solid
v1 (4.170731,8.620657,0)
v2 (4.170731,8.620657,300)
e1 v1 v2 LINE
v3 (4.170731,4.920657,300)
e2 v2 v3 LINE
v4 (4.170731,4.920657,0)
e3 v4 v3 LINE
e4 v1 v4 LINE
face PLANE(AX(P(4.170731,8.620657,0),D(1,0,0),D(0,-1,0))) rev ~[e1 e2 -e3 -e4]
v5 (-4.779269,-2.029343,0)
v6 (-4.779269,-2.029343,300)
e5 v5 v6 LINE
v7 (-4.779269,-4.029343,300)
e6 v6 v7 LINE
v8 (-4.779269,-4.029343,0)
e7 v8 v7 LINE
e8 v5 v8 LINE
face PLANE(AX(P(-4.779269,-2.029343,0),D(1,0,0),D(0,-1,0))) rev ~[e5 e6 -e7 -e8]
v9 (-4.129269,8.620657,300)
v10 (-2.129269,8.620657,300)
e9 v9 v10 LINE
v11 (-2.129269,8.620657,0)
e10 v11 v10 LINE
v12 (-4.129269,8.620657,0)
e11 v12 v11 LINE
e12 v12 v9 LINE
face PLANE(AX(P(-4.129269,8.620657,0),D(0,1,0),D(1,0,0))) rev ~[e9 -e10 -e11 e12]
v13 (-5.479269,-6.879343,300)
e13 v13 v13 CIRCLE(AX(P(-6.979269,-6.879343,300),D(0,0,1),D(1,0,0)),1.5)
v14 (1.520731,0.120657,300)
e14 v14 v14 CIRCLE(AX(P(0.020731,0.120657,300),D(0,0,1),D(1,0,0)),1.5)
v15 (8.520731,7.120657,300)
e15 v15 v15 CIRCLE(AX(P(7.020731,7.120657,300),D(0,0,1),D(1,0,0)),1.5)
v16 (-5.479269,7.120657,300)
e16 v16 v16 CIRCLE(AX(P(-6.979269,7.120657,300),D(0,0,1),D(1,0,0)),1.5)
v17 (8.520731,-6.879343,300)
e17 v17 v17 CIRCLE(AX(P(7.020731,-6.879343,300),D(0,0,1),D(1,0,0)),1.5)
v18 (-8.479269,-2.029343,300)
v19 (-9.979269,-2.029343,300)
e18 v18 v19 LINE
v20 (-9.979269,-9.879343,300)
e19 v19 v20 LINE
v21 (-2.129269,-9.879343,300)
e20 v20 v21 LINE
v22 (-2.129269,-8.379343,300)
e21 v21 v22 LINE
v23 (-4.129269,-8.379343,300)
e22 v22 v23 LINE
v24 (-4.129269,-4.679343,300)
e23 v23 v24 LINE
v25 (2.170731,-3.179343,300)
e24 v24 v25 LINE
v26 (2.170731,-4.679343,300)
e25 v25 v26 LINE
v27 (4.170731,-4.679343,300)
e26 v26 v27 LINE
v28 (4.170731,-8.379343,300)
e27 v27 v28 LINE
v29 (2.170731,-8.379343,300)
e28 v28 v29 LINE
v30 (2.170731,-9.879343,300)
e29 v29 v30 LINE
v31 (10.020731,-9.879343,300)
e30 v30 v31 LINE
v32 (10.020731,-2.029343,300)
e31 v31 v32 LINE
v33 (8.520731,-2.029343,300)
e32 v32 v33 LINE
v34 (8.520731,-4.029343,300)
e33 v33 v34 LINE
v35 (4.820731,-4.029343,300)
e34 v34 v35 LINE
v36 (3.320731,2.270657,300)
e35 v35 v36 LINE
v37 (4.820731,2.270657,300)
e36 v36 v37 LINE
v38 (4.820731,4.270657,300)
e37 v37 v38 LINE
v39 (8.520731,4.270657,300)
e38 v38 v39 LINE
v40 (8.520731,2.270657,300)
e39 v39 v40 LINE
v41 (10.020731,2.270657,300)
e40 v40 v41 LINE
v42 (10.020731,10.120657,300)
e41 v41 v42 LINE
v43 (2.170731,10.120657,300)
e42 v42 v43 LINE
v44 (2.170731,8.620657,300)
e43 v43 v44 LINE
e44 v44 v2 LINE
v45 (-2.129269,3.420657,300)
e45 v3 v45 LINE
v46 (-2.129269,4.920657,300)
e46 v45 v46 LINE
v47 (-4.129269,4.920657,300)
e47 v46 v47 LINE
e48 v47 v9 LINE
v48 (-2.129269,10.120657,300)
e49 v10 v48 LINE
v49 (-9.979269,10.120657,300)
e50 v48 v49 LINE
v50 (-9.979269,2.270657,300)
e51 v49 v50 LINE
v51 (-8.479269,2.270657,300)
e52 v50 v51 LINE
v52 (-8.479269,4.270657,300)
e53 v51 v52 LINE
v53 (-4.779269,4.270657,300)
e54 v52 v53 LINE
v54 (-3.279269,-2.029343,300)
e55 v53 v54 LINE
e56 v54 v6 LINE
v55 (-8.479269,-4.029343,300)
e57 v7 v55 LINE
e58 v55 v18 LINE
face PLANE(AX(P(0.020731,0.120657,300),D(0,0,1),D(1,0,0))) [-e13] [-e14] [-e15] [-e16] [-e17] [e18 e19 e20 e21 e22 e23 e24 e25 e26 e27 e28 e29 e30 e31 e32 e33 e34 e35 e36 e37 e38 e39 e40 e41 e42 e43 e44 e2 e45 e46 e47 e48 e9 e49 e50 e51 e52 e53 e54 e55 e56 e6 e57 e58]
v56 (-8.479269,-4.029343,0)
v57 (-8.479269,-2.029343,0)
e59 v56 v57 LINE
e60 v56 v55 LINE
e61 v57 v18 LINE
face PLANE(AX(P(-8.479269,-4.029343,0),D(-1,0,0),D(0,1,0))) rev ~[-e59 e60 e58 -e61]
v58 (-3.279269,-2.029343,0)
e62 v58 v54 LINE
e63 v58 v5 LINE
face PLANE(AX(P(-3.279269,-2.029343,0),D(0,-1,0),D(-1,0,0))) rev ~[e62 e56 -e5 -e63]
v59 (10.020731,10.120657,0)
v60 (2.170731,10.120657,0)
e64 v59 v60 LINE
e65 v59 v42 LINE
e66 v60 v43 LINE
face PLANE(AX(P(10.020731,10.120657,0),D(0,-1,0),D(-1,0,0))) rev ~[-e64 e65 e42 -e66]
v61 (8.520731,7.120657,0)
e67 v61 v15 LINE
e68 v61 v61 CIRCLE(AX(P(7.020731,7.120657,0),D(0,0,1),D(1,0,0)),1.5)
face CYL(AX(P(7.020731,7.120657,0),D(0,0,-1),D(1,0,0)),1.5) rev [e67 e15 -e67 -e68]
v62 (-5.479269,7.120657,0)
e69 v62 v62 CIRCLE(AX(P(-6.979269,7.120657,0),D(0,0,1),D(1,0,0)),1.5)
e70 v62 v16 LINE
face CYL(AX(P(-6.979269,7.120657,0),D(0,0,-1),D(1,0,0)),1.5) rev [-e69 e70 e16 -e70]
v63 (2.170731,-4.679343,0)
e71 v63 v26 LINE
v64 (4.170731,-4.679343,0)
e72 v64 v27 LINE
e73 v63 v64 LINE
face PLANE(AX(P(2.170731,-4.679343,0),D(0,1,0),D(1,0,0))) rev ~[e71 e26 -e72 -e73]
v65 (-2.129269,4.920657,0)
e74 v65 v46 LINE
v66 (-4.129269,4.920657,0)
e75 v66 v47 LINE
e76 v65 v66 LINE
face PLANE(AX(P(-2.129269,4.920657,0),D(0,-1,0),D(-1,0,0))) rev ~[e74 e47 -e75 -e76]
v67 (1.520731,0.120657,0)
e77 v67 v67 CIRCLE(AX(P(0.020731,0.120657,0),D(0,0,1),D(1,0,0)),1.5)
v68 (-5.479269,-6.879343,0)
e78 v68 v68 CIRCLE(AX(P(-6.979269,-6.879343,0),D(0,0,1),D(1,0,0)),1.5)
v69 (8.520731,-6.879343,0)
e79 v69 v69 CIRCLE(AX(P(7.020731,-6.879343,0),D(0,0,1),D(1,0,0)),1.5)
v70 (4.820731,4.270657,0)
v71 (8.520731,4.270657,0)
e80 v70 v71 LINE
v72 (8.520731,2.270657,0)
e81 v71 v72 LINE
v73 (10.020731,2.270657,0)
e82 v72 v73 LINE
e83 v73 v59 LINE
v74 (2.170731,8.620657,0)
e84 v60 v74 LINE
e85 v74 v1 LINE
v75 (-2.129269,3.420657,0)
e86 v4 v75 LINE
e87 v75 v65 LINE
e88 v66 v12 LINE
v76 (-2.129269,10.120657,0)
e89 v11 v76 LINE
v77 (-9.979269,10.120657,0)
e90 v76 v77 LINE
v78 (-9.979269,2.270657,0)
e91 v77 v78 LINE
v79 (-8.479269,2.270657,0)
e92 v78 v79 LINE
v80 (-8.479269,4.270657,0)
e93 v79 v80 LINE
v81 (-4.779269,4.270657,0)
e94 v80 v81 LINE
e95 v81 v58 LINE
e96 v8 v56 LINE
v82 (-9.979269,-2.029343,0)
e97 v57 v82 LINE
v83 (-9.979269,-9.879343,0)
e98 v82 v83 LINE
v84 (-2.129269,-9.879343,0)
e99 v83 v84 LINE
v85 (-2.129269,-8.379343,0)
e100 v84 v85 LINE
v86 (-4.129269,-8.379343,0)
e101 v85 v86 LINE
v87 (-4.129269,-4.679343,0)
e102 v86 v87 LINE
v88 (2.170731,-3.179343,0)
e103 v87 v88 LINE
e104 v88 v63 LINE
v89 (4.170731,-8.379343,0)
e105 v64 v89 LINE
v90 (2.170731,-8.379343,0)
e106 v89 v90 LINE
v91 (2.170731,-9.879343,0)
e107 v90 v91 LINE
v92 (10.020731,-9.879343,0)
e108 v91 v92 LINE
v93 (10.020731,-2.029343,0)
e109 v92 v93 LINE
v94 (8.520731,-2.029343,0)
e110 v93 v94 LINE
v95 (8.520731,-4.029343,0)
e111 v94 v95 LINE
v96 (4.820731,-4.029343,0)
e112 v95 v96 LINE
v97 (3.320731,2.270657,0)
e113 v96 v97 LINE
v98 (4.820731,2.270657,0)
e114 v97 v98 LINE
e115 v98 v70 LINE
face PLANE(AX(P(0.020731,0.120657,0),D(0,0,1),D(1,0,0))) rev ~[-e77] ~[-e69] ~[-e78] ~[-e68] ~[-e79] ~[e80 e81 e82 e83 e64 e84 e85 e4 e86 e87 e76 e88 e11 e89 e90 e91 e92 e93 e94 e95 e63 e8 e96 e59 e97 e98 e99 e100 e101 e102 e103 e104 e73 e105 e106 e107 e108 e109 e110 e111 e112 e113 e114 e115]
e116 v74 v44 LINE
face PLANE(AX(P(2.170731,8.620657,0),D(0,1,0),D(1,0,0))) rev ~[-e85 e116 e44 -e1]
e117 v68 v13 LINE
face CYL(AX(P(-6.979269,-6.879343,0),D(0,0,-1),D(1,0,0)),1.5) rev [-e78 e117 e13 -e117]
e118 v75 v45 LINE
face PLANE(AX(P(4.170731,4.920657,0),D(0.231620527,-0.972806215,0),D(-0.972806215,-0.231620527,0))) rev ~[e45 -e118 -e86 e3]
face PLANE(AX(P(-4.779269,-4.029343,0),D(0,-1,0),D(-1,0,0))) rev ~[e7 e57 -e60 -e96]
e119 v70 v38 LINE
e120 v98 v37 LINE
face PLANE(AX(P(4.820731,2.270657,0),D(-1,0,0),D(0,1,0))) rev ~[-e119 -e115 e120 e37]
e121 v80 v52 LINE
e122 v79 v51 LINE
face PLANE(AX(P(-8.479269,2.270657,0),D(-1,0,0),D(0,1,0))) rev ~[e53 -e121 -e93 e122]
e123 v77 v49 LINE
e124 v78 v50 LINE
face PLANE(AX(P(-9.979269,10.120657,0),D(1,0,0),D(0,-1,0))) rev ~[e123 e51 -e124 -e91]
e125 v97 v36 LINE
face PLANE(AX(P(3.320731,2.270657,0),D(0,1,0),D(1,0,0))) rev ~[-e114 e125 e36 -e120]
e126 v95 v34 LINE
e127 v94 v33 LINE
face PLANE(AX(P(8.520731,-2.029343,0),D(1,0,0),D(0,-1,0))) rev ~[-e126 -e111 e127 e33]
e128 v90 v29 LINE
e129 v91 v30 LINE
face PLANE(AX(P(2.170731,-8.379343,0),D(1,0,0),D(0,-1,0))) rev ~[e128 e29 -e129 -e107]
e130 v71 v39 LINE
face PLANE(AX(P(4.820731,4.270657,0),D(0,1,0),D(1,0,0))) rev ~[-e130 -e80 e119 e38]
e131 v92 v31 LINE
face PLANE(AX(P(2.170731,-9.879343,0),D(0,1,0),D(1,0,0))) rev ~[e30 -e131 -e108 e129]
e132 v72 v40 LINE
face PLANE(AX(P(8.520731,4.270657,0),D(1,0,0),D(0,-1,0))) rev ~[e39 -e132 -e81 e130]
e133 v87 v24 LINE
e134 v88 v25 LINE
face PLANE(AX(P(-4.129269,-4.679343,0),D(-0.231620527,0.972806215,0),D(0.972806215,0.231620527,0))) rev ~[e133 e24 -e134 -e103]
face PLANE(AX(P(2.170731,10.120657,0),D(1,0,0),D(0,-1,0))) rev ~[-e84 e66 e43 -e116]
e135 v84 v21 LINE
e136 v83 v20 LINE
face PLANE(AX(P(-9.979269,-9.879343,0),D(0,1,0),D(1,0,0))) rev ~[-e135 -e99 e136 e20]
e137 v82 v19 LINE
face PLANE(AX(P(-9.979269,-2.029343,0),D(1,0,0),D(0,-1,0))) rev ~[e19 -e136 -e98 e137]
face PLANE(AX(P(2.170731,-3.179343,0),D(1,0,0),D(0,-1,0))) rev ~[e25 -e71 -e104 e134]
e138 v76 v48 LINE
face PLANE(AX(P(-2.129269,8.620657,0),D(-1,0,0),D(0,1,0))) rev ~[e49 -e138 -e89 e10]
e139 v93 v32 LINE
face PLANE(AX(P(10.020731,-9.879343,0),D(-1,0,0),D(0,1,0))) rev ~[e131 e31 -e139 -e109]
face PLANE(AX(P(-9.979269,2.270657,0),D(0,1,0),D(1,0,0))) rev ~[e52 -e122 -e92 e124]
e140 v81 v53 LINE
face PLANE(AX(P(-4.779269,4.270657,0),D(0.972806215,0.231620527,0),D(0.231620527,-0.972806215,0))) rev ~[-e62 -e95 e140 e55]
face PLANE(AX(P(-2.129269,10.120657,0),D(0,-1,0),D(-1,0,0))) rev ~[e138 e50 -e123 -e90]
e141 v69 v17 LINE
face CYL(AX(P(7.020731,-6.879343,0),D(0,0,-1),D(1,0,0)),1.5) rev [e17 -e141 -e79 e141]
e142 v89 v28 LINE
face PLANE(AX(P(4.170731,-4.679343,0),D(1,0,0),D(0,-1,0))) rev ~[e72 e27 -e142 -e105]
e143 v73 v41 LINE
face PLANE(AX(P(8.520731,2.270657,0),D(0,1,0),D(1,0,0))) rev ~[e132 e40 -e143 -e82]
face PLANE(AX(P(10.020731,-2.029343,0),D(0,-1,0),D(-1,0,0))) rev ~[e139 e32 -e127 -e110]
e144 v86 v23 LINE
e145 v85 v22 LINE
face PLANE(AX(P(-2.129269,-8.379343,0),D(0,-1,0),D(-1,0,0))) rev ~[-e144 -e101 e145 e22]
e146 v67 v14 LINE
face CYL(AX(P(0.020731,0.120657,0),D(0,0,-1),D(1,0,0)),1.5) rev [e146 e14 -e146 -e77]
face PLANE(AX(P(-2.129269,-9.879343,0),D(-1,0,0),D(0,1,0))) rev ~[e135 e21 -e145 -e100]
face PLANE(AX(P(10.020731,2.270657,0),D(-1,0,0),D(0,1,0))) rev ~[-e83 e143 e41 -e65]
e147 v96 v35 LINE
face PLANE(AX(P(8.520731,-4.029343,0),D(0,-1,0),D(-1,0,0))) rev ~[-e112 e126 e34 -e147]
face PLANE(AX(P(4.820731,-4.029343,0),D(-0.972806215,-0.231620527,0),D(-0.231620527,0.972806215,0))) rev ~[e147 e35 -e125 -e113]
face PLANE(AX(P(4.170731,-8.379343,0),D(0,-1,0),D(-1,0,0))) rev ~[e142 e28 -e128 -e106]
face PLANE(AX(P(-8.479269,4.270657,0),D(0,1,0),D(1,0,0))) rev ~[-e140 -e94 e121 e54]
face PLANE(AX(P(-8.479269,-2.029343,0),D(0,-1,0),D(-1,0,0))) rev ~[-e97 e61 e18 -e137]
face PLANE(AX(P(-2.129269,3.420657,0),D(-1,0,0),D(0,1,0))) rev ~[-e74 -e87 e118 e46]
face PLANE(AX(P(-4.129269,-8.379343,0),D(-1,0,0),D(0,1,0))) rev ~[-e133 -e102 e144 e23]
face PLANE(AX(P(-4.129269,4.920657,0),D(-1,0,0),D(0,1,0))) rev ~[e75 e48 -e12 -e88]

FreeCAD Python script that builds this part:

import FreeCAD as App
import Part
import Sketcher
from FreeCAD import Vector


def add_polygon(sketch, points):
    """Adds a closed chain of lines whose ends are joined by coincident constraints."""
    first, n = sketch.GeometryCount, len(points)
    for a, b in zip(points, points[1:] + points[:1]):
        sketch.addGeometry(Part.LineSegment(App.Vector(*a, 0), App.Vector(*b, 0)), False)
    for i in range(n):
        sketch.addConstraint(Sketcher.Constraint("Coincident", first + i, 2, first + (i + 1) % n, 1))

doc = App.newDocument("Part")
body = doc.addObject("PartDesign::Body", "Body")

# Sketch on XY plane
sketch1 = doc.addObject("Sketcher::SketchObject", "Sketch")
body.addObject(sketch1)
sketch1.AttachmentSupport = (doc.XY_Plane, [""])
sketch1.MapMode = "FlatFace"
add_polygon(sketch1, [(-2.1, 10.1), (-10, 10.1), (-10, 2.3), (-8.5, 2.3), (-8.5, 4.3), (-4.8, 4.3), (-3.3, -2), (-4.8, -2), (-4.8, -4), (-8.5, -4), (-8.5, -2), (-10, -2), (-10, -9.9), (-2.1, -9.9), (-2.1, -8.4), (-4.1, -8.4), (-4.1, -4.7), (2.2, -3.2), (2.2, -4.7), (4.2, -4.7), (4.2, -8.4), (2.2, -8.4), (2.2, -9.9), (10, -9.9), (10, -2), (8.5, -2), (8.5, -4), (4.8, -4), (3.3, 2.3), (4.8, 2.3), (4.8, 4.3), (8.5, 4.3), (8.5, 2.3), (10, 2.3), (10, 10.1), (2.2, 10.1), (2.2, 8.6), (4.2, 8.6), (4.2, 4.9), (-2.1, 3.4), (-2.1, 4.9), (-4.1, 4.9), (-4.1, 8.6), (-2.1, 8.6)])  # lines 0-43
sketch1.addGeometry(Part.Circle(Vector(-7, -6.9, 0), Vector(0, 0, 1), 1.5), False)  # 44
sketch1.addGeometry(Part.Circle(Vector(7, -6.9, 0), Vector(0, 0, 1), 1.5), False)  # 45
sketch1.addGeometry(Part.Circle(Vector(-7, 7.1, 0), Vector(0, 0, 1), 1.5), False)  # 46
sketch1.addGeometry(Part.Circle(Vector(0, 0.1, 0), Vector(0, 0, 1), 1.5), False)  # 47
sketch1.addGeometry(Part.Circle(Vector(7, 7.1, 0), Vector(0, 0, 1), 1.5), False)  # 48
sketch1.addConstraint(Sketcher.Constraint("Horizontal", 0))
sketch1.addConstraint(Sketcher.Constraint("Vertical", 1))
sketch1.addConstraint(Sketcher.Constraint("Horizontal", 2))
sketch1.addConstraint(Sketcher.Constraint("Vertical", 3))
sketch1.addConstraint(Sketcher.Constraint("Horizontal", 4))
sketch1.addConstraint(Sketcher.Constraint("Horizontal", 6))
sketch1.addConstraint(Sketcher.Constraint("Vertical", 7))
sketch1.addConstraint(Sketcher.Constraint("Horizontal", 8))
sketch1.addConstraint(Sketcher.Constraint("Vertical", 9))
sketch1.addConstraint(Sketcher.Constraint("Horizontal", 10))
sketch1.addConstraint(Sketcher.Constraint("Vertical", 11))
sketch1.addConstraint(Sketcher.Constraint("Horizontal", 12))
sketch1.addConstraint(Sketcher.Constraint("Vertical", 13))
sketch1.addConstraint(Sketcher.Constraint("Horizontal", 14))
sketch1.addConstraint(Sketcher.Constraint("Vertical", 15))
sketch1.addConstraint(Sketcher.Constraint("Vertical", 17))
sketch1.addConstraint(Sketcher.Constraint("Horizontal", 18))
sketch1.addConstraint(Sketcher.Constraint("Vertical", 19))
sketch1.addConstraint(Sketcher.Constraint("Horizontal", 20))
sketch1.addConstraint(Sketcher.Constraint("Vertical", 21))
sketch1.addConstraint(Sketcher.Constraint("Horizontal", 22))
sketch1.addConstraint(Sketcher.Constraint("Vertical", 23))
sketch1.addConstraint(Sketcher.Constraint("Horizontal", 24))
sketch1.addConstraint(Sketcher.Constraint("Vertical", 25))
sketch1.addConstraint(Sketcher.Constraint("Horizontal", 26))
sketch1.addConstraint(Sketcher.Constraint("Horizontal", 28))
sketch1.addConstraint(Sketcher.Constraint("Vertical", 29))
sketch1.addConstraint(Sketcher.Constraint("Horizontal", 30))
sketch1.addConstraint(Sketcher.Constraint("Vertical", 31))
sketch1.addConstraint(Sketcher.Constraint("Horizontal", 32))
sketch1.addConstraint(Sketcher.Constraint("Vertical", 33))
sketch1.addConstraint(Sketcher.Constraint("Horizontal", 34))
sketch1.addConstraint(Sketcher.Constraint("Vertical", 35))
sketch1.addConstraint(Sketcher.Constraint("Horizontal", 36))
sketch1.addConstraint(Sketcher.Constraint("Vertical", 37))
sketch1.addConstraint(Sketcher.Constraint("Vertical", 39))
sketch1.addConstraint(Sketcher.Constraint("Horizontal", 40))
sketch1.addConstraint(Sketcher.Constraint("Vertical", 41))
sketch1.addConstraint(Sketcher.Constraint("Horizontal", 42))
sketch1.addConstraint(Sketcher.Constraint("Vertical", 43))
sketch1.addConstraint(Sketcher.Constraint("Equal", 44, 45))
sketch1.addConstraint(Sketcher.Constraint("Equal", 45, 46))
sketch1.addConstraint(Sketcher.Constraint("Equal", 46, 47))
sketch1.addConstraint(Sketcher.Constraint("Equal", 47, 48))
sketch1.addConstraint(Sketcher.Constraint("Perpendicular", 5, 16))
sketch1.addConstraint(Sketcher.Constraint("Perpendicular", 16, 27))
sketch1.addConstraint(Sketcher.Constraint("Perpendicular", 27, 38))
sketch1.addConstraint(Sketcher.Constraint("Horizontal", 44, 3, 45, 3))
sketch1.addConstraint(Sketcher.Constraint("Horizontal", 46, 3, 48, 3))
sketch1.addConstraint(Sketcher.Constraint("Horizontal", 6, 2, 9, 2))
sketch1.addConstraint(Sketcher.Constraint("Horizontal", 15, 2, 17, 2))
sketch1.addConstraint(Sketcher.Constraint("Horizontal", 14, 2, 19, 2))
sketch1.addConstraint(Sketcher.Constraint("Horizontal", 12, 2, 21, 2))
sketch1.addConstraint(Sketcher.Constraint("Horizontal", 10, 2, 23, 2))
sketch1.addConstraint(Sketcher.Constraint("Horizontal", 8, 2, 25, 2))
sketch1.addConstraint(Sketcher.Constraint("Horizontal", 2, 2, 27, 2))
sketch1.addConstraint(Sketcher.Constraint("Horizontal", 4, 2, 29, 2))
sketch1.addConstraint(Sketcher.Constraint("Horizontal", 28, 2, 31, 2))
sketch1.addConstraint(Sketcher.Constraint("Horizontal", 0, 2, 33, 2))
sketch1.addConstraint(Sketcher.Constraint("Horizontal", 37, 2, 39, 2))
sketch1.addConstraint(Sketcher.Constraint("Horizontal", 36, 2, 41, 2))
sketch1.addConstraint(Sketcher.Constraint("Vertical", 44, 3, 46, 3))
sketch1.addConstraint(Sketcher.Constraint("Vertical", 45, 3, 48, 3))
sketch1.addConstraint(Sketcher.Constraint("Vertical", 4, 2, 6, 2))
sketch1.addConstraint(Sketcher.Constraint("Vertical", 3, 2, 8, 2))
sketch1.addConstraint(Sketcher.Constraint("Vertical", 1, 2, 10, 2))
sketch1.addConstraint(Sketcher.Constraint("Vertical", 17, 2, 20, 2))
sketch1.addConstraint(Sketcher.Constraint("Vertical", 26, 2, 28, 2))
sketch1.addConstraint(Sketcher.Constraint("Vertical", 25, 2, 30, 2))
sketch1.addConstraint(Sketcher.Constraint("Vertical", 23, 2, 32, 2))
sketch1.addConstraint(Sketcher.Constraint("Vertical", 21, 2, 34, 2))
sketch1.addConstraint(Sketcher.Constraint("Vertical", 19, 2, 36, 2))
sketch1.addConstraint(Sketcher.Constraint("Vertical", 13, 2, 38, 2))
sketch1.addConstraint(Sketcher.Constraint("Vertical", 15, 2, 40, 2))
sketch1.addConstraint(Sketcher.Constraint("Vertical", 39, 2, 42, 2))
sketch1.addConstraint(Sketcher.Constraint("Equal", 2, 6))
sketch1.addConstraint(Sketcher.Constraint("Equal", 14, 18))
sketch1.addConstraint(Sketcher.Constraint("Equal", 12, 22))
sketch1.addConstraint(Sketcher.Constraint("Equal", 10, 24))
sketch1.addConstraint(Sketcher.Constraint("Equal", 8, 26))
sketch1.addConstraint(Sketcher.Constraint("Equal", 24, 28))
sketch1.addConstraint(Sketcher.Constraint("Equal", 34, 1))
sketch1.addConstraint(Sketcher.Constraint("Equal", 42, 3))
sketch1.addConstraint(Sketcher.Constraint("Equal", 1, 11))
sketch1.addConstraint(Sketcher.Constraint("Equal", 32, 13))
sketch1.addConstraint(Sketcher.Constraint("Equal", 30, 15))
sketch1.addConstraint(Sketcher.Constraint("Equal", 13, 17))
sketch1.addConstraint(Sketcher.Constraint("Equal", 21, 35))
sketch1.addConstraint(Sketcher.Constraint("Equal", 19, 37))
sketch1.addConstraint(Sketcher.Constraint("Diameter", 44, 3.0))
sketch1.addConstraint(Sketcher.Constraint("DistanceX", 14, 2, 14, 1, 2.0))
sketch1.addConstraint(Sketcher.Constraint("DistanceX", 2, 1, 2, 2, 1.5))
sketch1.addConstraint(Sketcher.Constraint("DistanceX", 4, 1, 4, 2, 3.7))
sketch1.addConstraint(Sketcher.Constraint("DistanceX", 44, 3, 45, 3, 14.0))
sketch1.addConstraint(Sketcher.Constraint("DistanceY", 44, 3, 46, 3, 14.0))
sketch1.addConstraint(Sketcher.Constraint("DistanceX", 44, 3, 47, 3, 7.0))
sketch1.addConstraint(Sketcher.Constraint("DistanceY", 44, 3, 47, 3, 7.0))
sketch1.addConstraint(Sketcher.Constraint("DistanceX", 0, 2, 46, 3, 3.0))
sketch1.addConstraint(Sketcher.Constraint("DistanceY", 46, 3, 0, 2, 3.0))
sketch1.addConstraint(Sketcher.Constraint("DistanceY", 11, 2, 44, 3, 3.0))
sketch1.addConstraint(Sketcher.Constraint("DistanceX", 0, 2, 0, 1, 7.85))
sketch1.addConstraint(Sketcher.Constraint("DistanceX", 44, 3, -1, 1, 6.979269))
sketch1.addConstraint(Sketcher.Constraint("DistanceY", 44, 3, -1, 1, 6.879343))
pad1 = doc.addObject("PartDesign::Pad", "Pad")
body.addObject(pad1)
pad1.Profile = sketch1
pad1.Length = 300

doc.recompute()
